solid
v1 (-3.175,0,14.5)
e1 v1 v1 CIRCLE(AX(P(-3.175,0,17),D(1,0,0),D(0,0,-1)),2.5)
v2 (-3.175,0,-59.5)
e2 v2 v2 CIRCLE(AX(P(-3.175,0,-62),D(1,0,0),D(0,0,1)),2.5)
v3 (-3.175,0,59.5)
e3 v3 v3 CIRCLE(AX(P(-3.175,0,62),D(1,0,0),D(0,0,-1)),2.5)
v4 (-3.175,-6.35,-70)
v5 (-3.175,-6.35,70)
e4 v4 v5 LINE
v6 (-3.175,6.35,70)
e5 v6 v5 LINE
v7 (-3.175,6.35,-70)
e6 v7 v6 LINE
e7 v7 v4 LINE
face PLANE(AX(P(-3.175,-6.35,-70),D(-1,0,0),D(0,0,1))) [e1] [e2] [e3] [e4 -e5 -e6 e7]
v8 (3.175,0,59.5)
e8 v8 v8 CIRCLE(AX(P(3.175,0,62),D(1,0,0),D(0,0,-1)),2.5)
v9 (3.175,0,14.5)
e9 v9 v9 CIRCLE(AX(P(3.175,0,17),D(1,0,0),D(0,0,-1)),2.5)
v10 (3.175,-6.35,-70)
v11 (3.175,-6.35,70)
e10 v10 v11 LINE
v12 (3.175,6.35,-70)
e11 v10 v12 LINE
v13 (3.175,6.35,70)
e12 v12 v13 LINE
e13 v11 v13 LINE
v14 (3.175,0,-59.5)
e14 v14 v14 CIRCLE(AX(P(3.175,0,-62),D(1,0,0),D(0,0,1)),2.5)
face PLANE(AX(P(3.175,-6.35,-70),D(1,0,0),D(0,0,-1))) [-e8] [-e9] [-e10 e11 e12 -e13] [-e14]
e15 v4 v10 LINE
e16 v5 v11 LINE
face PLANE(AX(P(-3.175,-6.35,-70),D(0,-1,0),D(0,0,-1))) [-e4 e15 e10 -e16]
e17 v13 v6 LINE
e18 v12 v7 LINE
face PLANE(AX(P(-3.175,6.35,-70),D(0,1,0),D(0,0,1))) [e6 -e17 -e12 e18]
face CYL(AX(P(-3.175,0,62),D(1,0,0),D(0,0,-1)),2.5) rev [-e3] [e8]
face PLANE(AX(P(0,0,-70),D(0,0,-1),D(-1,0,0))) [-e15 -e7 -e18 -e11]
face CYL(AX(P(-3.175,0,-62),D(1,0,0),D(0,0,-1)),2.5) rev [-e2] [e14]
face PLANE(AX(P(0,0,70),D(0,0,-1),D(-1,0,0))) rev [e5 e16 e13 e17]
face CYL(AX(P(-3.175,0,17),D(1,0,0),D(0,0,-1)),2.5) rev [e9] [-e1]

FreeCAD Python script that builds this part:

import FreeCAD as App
import Part
import Sketcher
Q = App.Units.Quantity

doc = App.newDocument("Part")
params = doc.addObject("Spreadsheet::Sheet", "Params")
for row, (alias, value) in enumerate([
    ("sketch1_height", "12.7 mm"),
    ("sketch1_width", "6.35 mm"),
    ("pad1_length", "70 mm"),
    ("pad1_length2", "70 mm"),
    ("sketch2_diameter", "5 mm"),
], start=1):
    params.set(f"A{row}", alias)
    params.set(f"B{row}", "=" + value)
    params.setAlias(f"B{row}", alias)

body = doc.addObject("PartDesign::Body", "Body")

# Sketch on XY plane
sketch1 = doc.addObject("Sketcher::SketchObject", "Sketch")
body.addObject(sketch1)
sketch1.AttachmentSupport = (doc.XY_Plane, [""])
sketch1.MapMode = "FlatFace"
sketch1.addGeometry([
    Part.LineSegment(App.Vector(-3.175, 6.35, 0), App.Vector(-3.175, -6.35, 0)),
    Part.LineSegment(App.Vector(-3.175, -6.35, 0), App.Vector(3.175, -6.35, 0)),
    Part.LineSegment(App.Vector(3.175, -6.35, 0), App.Vector(3.175, 6.35, 0)),
    Part.LineSegment(App.Vector(3.175, 6.35, 0), App.Vector(-3.175, 6.35, 0)),
], False)
sketch1.addConstraint([
    Sketcher.Constraint("Coincident", 0, 2, 1, 1),
    Sketcher.Constraint("Coincident", 1, 2, 2, 1),
    Sketcher.Constraint("Coincident", 2, 2, 3, 1),
    Sketcher.Constraint("Coincident", 3, 2, 0, 1),
    Sketcher.Constraint("Vertical", 0),
    Sketcher.Constraint("Horizontal", 1),
    Sketcher.Constraint("Vertical", 2),
    Sketcher.Constraint("Horizontal", 3),
    Sketcher.Constraint("Symmetric", 0, 2, 2, 2, -1, 1),
    Sketcher.Constraint("DistanceY", 0, 2, 0, 1, Q("12.7 mm")),
    Sketcher.Constraint("DistanceX", 1, 1, 1, 2, Q("6.35 mm")),
])
sketch1.setExpression("Constraints[9]", "Params.sketch1_height")
sketch1.setExpression("Constraints[10]", "Params.sketch1_width")
pad1 = doc.addObject("PartDesign::Pad", "Pad")
body.addObject(pad1)
pad1.Profile = sketch1
pad1.Type = "TwoLengths"
pad1.setExpression("Length", "Params.pad1_length")
pad1.setExpression("Length2", "Params.pad1_length2")

# Sketch on YZ plane
sketch2 = doc.addObject("Sketcher::SketchObject", "Sketch001")
body.addObject(sketch2)
sketch2.AttachmentSupport = (doc.YZ_Plane, [""])
sketch2.MapMode = "FlatFace"
sketch2.AttachmentOffset = App.Placement(App.Vector(0, 0, 3.175), App.Rotation())
sketch2.addGeometry([
    Part.Circle(App.Vector(0, 62, 0), App.Vector(0, 0, 1), 2.5),
    Part.Circle(App.Vector(0, -62, 0), App.Vector(0, 0, 1), 2.5),
    Part.Circle(App.Vector(0, 17, 0), App.Vector(0, 0, 1), 2.5),
], False)
sketch2.addConstraint([
    Sketcher.Constraint("Equal", 0, 1),
    Sketcher.Constraint("Equal", 1, 2),
    Sketcher.Constraint("Symmetric", 0, 3, 1, 3, -1, 1),
    Sketcher.Constraint("PointOnObject", 0, 3, -2),
    Sketcher.Constraint("PointOnObject", 2, 3, -2),
    Sketcher.Constraint("Diameter", 0, Q("5 mm")),
    Sketcher.Constraint("DistanceY", -1, 1, 0, 3, Q("62 mm")),
    Sketcher.Constraint("DistanceY", -1, 1, 2, 3, Q("17 mm")),
])
sketch2.setExpression("Constraints[5]", "Params.sketch2_diameter")
pocket1 = doc.addObject("PartDesign::Pocket", "Pocket")
body.addObject(pocket1)
pocket1.Profile = sketch2
pocket1.Type = "ThroughAll"

doc.recompute()
